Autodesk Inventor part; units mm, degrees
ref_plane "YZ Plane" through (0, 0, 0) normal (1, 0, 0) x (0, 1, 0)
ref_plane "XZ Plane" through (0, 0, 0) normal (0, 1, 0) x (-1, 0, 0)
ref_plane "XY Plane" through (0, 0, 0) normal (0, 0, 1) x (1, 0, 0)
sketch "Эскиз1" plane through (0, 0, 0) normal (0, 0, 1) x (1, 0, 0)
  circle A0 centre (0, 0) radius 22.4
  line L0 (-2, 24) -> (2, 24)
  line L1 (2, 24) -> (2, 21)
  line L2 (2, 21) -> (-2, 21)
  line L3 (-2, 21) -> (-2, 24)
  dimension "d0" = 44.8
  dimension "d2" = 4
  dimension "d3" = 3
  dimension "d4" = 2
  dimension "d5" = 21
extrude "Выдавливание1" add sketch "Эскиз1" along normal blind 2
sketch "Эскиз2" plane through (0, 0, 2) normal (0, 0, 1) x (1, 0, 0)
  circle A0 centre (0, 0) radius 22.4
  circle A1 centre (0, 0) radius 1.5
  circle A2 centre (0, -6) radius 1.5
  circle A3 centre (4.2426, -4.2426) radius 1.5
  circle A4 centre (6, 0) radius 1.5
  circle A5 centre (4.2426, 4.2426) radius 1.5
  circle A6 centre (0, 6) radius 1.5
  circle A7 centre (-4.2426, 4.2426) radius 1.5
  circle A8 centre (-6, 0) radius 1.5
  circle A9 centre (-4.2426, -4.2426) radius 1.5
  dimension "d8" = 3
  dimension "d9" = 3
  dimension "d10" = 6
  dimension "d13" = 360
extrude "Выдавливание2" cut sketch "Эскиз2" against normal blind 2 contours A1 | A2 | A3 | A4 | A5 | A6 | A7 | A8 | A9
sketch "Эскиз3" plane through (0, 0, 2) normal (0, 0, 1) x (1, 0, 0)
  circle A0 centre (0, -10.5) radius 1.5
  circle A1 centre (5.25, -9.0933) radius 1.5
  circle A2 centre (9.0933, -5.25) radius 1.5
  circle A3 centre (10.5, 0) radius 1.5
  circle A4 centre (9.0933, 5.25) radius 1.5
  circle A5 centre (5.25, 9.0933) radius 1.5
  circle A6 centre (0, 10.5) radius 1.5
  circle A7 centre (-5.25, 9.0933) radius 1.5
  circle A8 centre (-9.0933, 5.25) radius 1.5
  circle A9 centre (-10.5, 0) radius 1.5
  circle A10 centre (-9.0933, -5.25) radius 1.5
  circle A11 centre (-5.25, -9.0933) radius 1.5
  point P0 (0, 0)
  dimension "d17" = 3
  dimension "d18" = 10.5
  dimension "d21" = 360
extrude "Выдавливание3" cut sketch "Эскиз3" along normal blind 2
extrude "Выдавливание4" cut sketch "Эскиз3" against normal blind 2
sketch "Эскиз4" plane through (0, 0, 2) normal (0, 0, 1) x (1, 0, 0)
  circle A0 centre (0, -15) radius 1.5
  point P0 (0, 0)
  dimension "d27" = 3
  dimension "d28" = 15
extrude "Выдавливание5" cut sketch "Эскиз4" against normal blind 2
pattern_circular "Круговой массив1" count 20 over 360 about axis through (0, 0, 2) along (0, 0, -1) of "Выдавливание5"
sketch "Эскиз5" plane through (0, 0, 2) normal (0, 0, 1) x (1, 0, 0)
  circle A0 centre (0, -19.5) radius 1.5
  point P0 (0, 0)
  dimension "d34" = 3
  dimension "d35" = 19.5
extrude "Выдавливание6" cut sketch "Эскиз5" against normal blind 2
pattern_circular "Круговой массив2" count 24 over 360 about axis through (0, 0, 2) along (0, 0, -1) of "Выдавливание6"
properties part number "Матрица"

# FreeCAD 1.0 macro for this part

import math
import FreeCAD as App
import Part
import Sketcher
from FreeCAD import Vector
Q = App.Units.Quantity

doc = App.newDocument("Part")
body = doc.addObject("PartDesign::Body", "Body")

sketch1 = doc.addObject("Sketcher::SketchObject", "Sketch")
body.addObject(sketch1)
sketch1.AttachmentSupport = (doc.XY_Plane, [""])
sketch1.MapMode = "FlatFace"
sketch1.addGeometry([
    Part.ArcOfCircle(Part.Circle(Vector(0, 0, 0), Vector(0, 0, 1), 22.4), math.radians(95), math.radians(445)),
    Part.LineSegment(Vector(2, 22.3, 0), Vector(2, 24, 0)),
    Part.LineSegment(Vector(2, 24, 0), Vector(-2, 24, 0)),
    Part.LineSegment(Vector(-2, 24, 0), Vector(-2, 22.3, 0)),
], False)
sketch1.addConstraint([
    Sketcher.Constraint("Coincident", 0, 2, 1, 1),
    Sketcher.Constraint("Coincident", 1, 2, 2, 1),
    Sketcher.Constraint("Coincident", 2, 2, 3, 1),
    Sketcher.Constraint("Coincident", 3, 2, 0, 1),
    Sketcher.Constraint("Vertical", 1),
    Sketcher.Constraint("Horizontal", 2),
    Sketcher.Constraint("Vertical", 3),
    Sketcher.Constraint("Coincident", 0, 3, -1, 1),
    Sketcher.Constraint("Horizontal", 0, 2, 3, 2),
    Sketcher.Constraint("Radius", 0, Q("22.4 mm")),
    Sketcher.Constraint("DistanceX", 2, 2, 2, 1, Q("4 mm")),
    Sketcher.Constraint("DistanceY", -1, 1, 1, 2, Q("24 mm")),
])
pad1 = doc.addObject("PartDesign::Pad", "Pad")
body.addObject(pad1)
pad1.Profile = sketch1
pad1.Length = 2

sketch2 = doc.addObject("Sketcher::SketchObject", "Sketch001")
body.addObject(sketch2)
sketch2.AttachmentSupport = (doc.XY_Plane, [""])
sketch2.MapMode = "FlatFace"
sketch2.AttachmentOffset = App.Placement(Vector(0, 0, 2), App.Rotation())
sketch2.addGeometry([
    Part.Circle(Vector(0, 0, 0), Vector(0, 0, 1), 1.5),
    Part.Circle(Vector(0, -6, 0), Vector(0, 0, 1), 1.5),
    Part.Circle(Vector(4.2, -4.2, 0), Vector(0, 0, 1), 1.5),
    Part.Circle(Vector(6, 0, 0), Vector(0, 0, 1), 1.5),
    Part.Circle(Vector(4.2, 4.2, 0), Vector(0, 0, 1), 1.5),
    Part.Circle(Vector(0, 6, 0), Vector(0, 0, 1), 1.5),
    Part.Circle(Vector(-4.2, 4.2, 0), Vector(0, 0, 1), 1.5),
    Part.Circle(Vector(-6, 0, 0), Vector(0, 0, 1), 1.5),
    Part.Circle(Vector(-4.2, -4.2, 0), Vector(0, 0, 1), 1.5),
], False)
sketch2.addConstraint([
    Sketcher.Constraint("Coincident", 0, 3, -1, 1),
    Sketcher.Constraint("Equal", 0, 1),
    Sketcher.Constraint("Equal", 1, 2),
    Sketcher.Constraint("Equal", 2, 3),
    Sketcher.Constraint("Equal", 3, 4),
    Sketcher.Constraint("Equal", 4, 5),
    Sketcher.Constraint("Equal", 5, 6),
    Sketcher.Constraint("Equal", 6, 7),
    Sketcher.Constraint("Equal", 7, 8),
    Sketcher.Constraint("Symmetric", 1, 3, 5, 3, -1, 1),
    Sketcher.Constraint("Symmetric", 2, 3, 6, 3, -1, 1),
    Sketcher.Constraint("Symmetric", 3, 3, 7, 3, -1, 1),
    Sketcher.Constraint("Symmetric", 4, 3, 8, 3, -1, 1),
    Sketcher.Constraint("Symmetric", 4, 3, 6, 3, -2),
    Sketcher.Constraint("PointOnObject", 1, 3, -2),
    Sketcher.Constraint("PointOnObject", 3, 3, -1),
    Sketcher.Constraint("Diameter", 0, Q("3 mm")),
    Sketcher.Constraint("DistanceY", 1, 3, -1, 1, Q("6 mm")),
    Sketcher.Constraint("DistanceX", -1, 1, 3, 3, Q("6 mm")),
    Sketcher.Constraint("DistanceX", -1, 1, 2, 3, Q("4.2426 mm")),
    Sketcher.Constraint("DistanceY", 2, 3, -1, 1, Q("4.2426 mm")),
])
pocket1 = doc.addObject("PartDesign::Pocket", "Pocket")
body.addObject(pocket1)
pocket1.Profile = sketch2
pocket1.Length = 2

sketch3 = doc.addObject("Sketcher::SketchObject", "Sketch002")
body.addObject(sketch3)
sketch3.AttachmentSupport = (doc.XY_Plane, [""])
sketch3.MapMode = "FlatFace"
sketch3.AttachmentOffset = App.Placement(Vector(0, 0, 2), App.Rotation())
sketch3.addGeometry([
    Part.Circle(Vector(0, -10.5, 0), Vector(0, 0, 1), 1.5),
    Part.Circle(Vector(5.2, -9.1, 0), Vector(0, 0, 1), 1.5),
    Part.Circle(Vector(9.1, -5.2, 0), Vector(0, 0, 1), 1.5),
    Part.Circle(Vector(10.5, 0, 0), Vector(0, 0, 1), 1.5),
    Part.Circle(Vector(9.1, 5.2, 0), Vector(0, 0, 1), 1.5),
    Part.Circle(Vector(5.2, 9.1, 0), Vector(0, 0, 1), 1.5),
    Part.Circle(Vector(0, 10.5, 0), Vector(0, 0, 1), 1.5),
    Part.Circle(Vector(-5.2, 9.1, 0), Vector(0, 0, 1), 1.5),
    Part.Circle(Vector(-9.1, 5.2, 0), Vector(0, 0, 1), 1.5),
    Part.Circle(Vector(-10.5, 0, 0), Vector(0, 0, 1), 1.5),
    Part.Circle(Vector(-9.1, -5.2, 0), Vector(0, 0, 1), 1.5),
    Part.Circle(Vector(-5.2, -9.1, 0), Vector(0, 0, 1), 1.5),
], False)
sketch3.addConstraint([
    Sketcher.Constraint("Equal", 0, 1),
    Sketcher.Constraint("Equal", 1, 2),
    Sketcher.Constraint("Equal", 2, 3),
    Sketcher.Constraint("Equal", 3, 4),
    Sketcher.Constraint("Equal", 4, 5),
    Sketcher.Constraint("Equal", 5, 6),
    Sketcher.Constraint("Equal", 6, 7),
    Sketcher.Constraint("Equal", 7, 8),
    Sketcher.Constraint("Equal", 8, 9),
    Sketcher.Constraint("Equal", 9, 10),
    Sketcher.Constraint("Equal", 10, 11),
    Sketcher.Constraint("Symmetric", 0, 3, 6, 3, -1, 1),
    Sketcher.Constraint("Symmetric", 1, 3, 7, 3, -1, 1),
    Sketcher.Constraint("Symmetric", 2, 3, 8, 3, -1, 1),
    Sketcher.Constraint("Symmetric", 3, 3, 9, 3, -1, 1),
    Sketcher.Constraint("Symmetric", 4, 3, 10, 3, -1, 1),
    Sketcher.Constraint("Symmetric", 5, 3, 11, 3, -1, 1),
    Sketcher.Constraint("Symmetric", 5, 3, 7, 3, -2),
    Sketcher.Constraint("Symmetric", 4, 3, 8, 3, -2),
    Sketcher.Constraint("PointOnObject", 0, 3, -2),
    Sketcher.Constraint("PointOnObject", 3, 3, -1),
    Sketcher.Constraint("Diameter", 0, Q("3 mm")),
    Sketcher.Constraint("DistanceY", 0, 3, -1, 1, Q("10.5 mm")),
    Sketcher.Constraint("DistanceX", -1, 1, 3, 3, Q("10.5 mm")),
    Sketcher.Constraint("DistanceY", 2, 3, 4, 3, Q("10.5 mm")),
    Sketcher.Constraint("DistanceX", 7, 3, 5, 3, Q("10.5 mm")),
    Sketcher.Constraint("DistanceY", 1, 3, -1, 1, Q("9.0933 mm")),
    Sketcher.Constraint("DistanceX", -1, 1, 2, 3, Q("9.0933 mm")),
])
pocket2 = doc.addObject("PartDesign::Pocket", "Pocket001")
body.addObject(pocket2)
pocket2.Profile = sketch3
pocket2.Length = 2
pocket2.Reversed = True

sketch4 = doc.addObject("Sketcher::SketchObject", "Sketch003")
body.addObject(sketch4)
sketch4.AttachmentSupport = (doc.XY_Plane, [""])
sketch4.MapMode = "FlatFace"
sketch4.AttachmentOffset = App.Placement(Vector(0, 0, 2), App.Rotation())
sketch4.addGeometry([
    Part.Circle(Vector(0, -10.5, 0), Vector(0, 0, 1), 1.5),
    Part.Circle(Vector(5.2, -9.1, 0), Vector(0, 0, 1), 1.5),
    Part.Circle(Vector(9.1, -5.2, 0), Vector(0, 0, 1), 1.5),
    Part.Circle(Vector(10.5, 0, 0), Vector(0, 0, 1), 1.5),
    Part.Circle(Vector(9.1, 5.2, 0), Vector(0, 0, 1), 1.5),
    Part.Circle(Vector(5.2, 9.1, 0), Vector(0, 0, 1), 1.5),
    Part.Circle(Vector(0, 10.5, 0), Vector(0, 0, 1), 1.5),
    Part.Circle(Vector(-5.2, 9.1, 0), Vector(0, 0, 1), 1.5),
    Part.Circle(Vector(-9.1, 5.2, 0), Vector(0, 0, 1), 1.5),
    Part.Circle(Vector(-10.5, 0, 0), Vector(0, 0, 1), 1.5),
    Part.Circle(Vector(-9.1, -5.2, 0), Vector(0, 0, 1), 1.5),
    Part.Circle(Vector(-5.2, -9.1, 0), Vector(0, 0, 1), 1.5),
], False)
sketch4.addConstraint([
    Sketcher.Constraint("Equal", 0, 1),
    Sketcher.Constraint("Equal", 1, 2),
    Sketcher.Constraint("Equal", 2, 3),
    Sketcher.Constraint("Equal", 3, 4),
    Sketcher.Constraint("Equal", 4, 5),
    Sketcher.Constraint("Equal", 5, 6),
    Sketcher.Constraint("Equal", 6, 7),
    Sketcher.Constraint("Equal", 7, 8),
    Sketcher.Constraint("Equal", 8, 9),
    Sketcher.Constraint("Equal", 9, 10),
    Sketcher.Constraint("Equal", 10, 11),
    Sketcher.Constraint("Symmetric", 0, 3, 6, 3, -1, 1),
    Sketcher.Constraint("Symmetric", 1, 3, 7, 3, -1, 1),
    Sketcher.Constraint("Symmetric", 2, 3, 8, 3, -1, 1),
    Sketcher.Constraint("Symmetric", 3, 3, 9, 3, -1, 1),
    Sketcher.Constraint("Symmetric", 4, 3, 10, 3, -1, 1),
    Sketcher.Constraint("Symmetric", 5, 3, 11, 3, -1, 1),
    Sketcher.Constraint("Symmetric", 5, 3, 7, 3, -2),
    Sketcher.Constraint("Symmetric", 4, 3, 8, 3, -2),
    Sketcher.Constraint("PointOnObject", 0, 3, -2),
    Sketcher.Constraint("PointOnObject", 3, 3, -1),
    Sketcher.Constraint("Diameter", 0, Q("3 mm")),
    Sketcher.Constraint("DistanceY", 0, 3, -1, 1, Q("10.5 mm")),
    Sketcher.Constraint("DistanceX", -1, 1, 3, 3, Q("10.5 mm")),
    Sketcher.Constraint("DistanceY", 2, 3, 4, 3, Q("10.5 mm")),
    Sketcher.Constraint("DistanceX", 7, 3, 5, 3, Q("10.5 mm")),
    Sketcher.Constraint("DistanceY", 1, 3, -1, 1, Q("9.0933 mm")),
    Sketcher.Constraint("DistanceX", -1, 1, 2, 3, Q("9.0933 mm")),
])
pocket3 = doc.addObject("PartDesign::Pocket", "Pocket002")
body.addObject(pocket3)
pocket3.Profile = sketch4
pocket3.Length = 2

sketch5 = doc.addObject("Sketcher::SketchObject", "Sketch004")
body.addObject(sketch5)
sketch5.AttachmentSupport = (doc.XY_Plane, [""])
sketch5.MapMode = "FlatFace"
sketch5.AttachmentOffset = App.Placement(Vector(0, 0, 2), App.Rotation())
sketch5.addGeometry(Part.Circle(Vector(0, -15, 0), Vector(0, 0, 1), 1.5), False)
sketch5.addConstraint([
    Sketcher.Constraint("PointOnObject", 0, 3, -2),
    Sketcher.Constraint("Diameter", 0, Q("3 mm")),
    Sketcher.Constraint("DistanceY", 0, 3, -1, 1, Q("15 mm")),
])
pocket4 = doc.addObject("PartDesign::Pocket", "Pocket003")
body.addObject(pocket4)
pocket4.Profile = sketch5
pocket4.Length = 2
doc.recompute()

polarpattern = doc.addObject("PartDesign::PolarPattern", "PolarPattern")
body.addObject(polarpattern)
polarpattern.Originals = [pocket4]
polarpattern.Axis = (doc.Z_Axis, [""])
polarpattern.Angle = 360
polarpattern.Occurrences = 20
body.Tip = polarpattern

sketch6 = doc.addObject("Sketcher::SketchObject", "Sketch005")
body.addObject(sketch6)
sketch6.AttachmentSupport = (doc.XY_Plane, [""])
sketch6.MapMode = "FlatFace"
sketch6.AttachmentOffset = App.Placement(Vector(0, 0, 2), App.Rotation())
sketch6.addGeometry(Part.Circle(Vector(0, -19.5, 0), Vector(0, 0, 1), 1.5), False)
sketch6.addConstraint([
    Sketcher.Constraint("PointOnObject", 0, 3, -2),
    Sketcher.Constraint("Diameter", 0, Q("3 mm")),
    Sketcher.Constraint("DistanceY", 0, 3, -1, 1, Q("19.5 mm")),
])
pocket5 = doc.addObject("PartDesign::Pocket", "Pocket004")
body.addObject(pocket5)
pocket5.Profile = sketch6
pocket5.Length = 2
doc.recompute()

polarpattern2 = doc.addObject("PartDesign::PolarPattern", "PolarPattern001")
body.addObject(polarpattern2)
polarpattern2.Originals = [pocket5]
polarpattern2.Axis = (doc.Z_Axis, [""])
polarpattern2.Angle = 360
polarpattern2.Occurrences = 24
body.Tip = polarpattern2

doc.recompute()
